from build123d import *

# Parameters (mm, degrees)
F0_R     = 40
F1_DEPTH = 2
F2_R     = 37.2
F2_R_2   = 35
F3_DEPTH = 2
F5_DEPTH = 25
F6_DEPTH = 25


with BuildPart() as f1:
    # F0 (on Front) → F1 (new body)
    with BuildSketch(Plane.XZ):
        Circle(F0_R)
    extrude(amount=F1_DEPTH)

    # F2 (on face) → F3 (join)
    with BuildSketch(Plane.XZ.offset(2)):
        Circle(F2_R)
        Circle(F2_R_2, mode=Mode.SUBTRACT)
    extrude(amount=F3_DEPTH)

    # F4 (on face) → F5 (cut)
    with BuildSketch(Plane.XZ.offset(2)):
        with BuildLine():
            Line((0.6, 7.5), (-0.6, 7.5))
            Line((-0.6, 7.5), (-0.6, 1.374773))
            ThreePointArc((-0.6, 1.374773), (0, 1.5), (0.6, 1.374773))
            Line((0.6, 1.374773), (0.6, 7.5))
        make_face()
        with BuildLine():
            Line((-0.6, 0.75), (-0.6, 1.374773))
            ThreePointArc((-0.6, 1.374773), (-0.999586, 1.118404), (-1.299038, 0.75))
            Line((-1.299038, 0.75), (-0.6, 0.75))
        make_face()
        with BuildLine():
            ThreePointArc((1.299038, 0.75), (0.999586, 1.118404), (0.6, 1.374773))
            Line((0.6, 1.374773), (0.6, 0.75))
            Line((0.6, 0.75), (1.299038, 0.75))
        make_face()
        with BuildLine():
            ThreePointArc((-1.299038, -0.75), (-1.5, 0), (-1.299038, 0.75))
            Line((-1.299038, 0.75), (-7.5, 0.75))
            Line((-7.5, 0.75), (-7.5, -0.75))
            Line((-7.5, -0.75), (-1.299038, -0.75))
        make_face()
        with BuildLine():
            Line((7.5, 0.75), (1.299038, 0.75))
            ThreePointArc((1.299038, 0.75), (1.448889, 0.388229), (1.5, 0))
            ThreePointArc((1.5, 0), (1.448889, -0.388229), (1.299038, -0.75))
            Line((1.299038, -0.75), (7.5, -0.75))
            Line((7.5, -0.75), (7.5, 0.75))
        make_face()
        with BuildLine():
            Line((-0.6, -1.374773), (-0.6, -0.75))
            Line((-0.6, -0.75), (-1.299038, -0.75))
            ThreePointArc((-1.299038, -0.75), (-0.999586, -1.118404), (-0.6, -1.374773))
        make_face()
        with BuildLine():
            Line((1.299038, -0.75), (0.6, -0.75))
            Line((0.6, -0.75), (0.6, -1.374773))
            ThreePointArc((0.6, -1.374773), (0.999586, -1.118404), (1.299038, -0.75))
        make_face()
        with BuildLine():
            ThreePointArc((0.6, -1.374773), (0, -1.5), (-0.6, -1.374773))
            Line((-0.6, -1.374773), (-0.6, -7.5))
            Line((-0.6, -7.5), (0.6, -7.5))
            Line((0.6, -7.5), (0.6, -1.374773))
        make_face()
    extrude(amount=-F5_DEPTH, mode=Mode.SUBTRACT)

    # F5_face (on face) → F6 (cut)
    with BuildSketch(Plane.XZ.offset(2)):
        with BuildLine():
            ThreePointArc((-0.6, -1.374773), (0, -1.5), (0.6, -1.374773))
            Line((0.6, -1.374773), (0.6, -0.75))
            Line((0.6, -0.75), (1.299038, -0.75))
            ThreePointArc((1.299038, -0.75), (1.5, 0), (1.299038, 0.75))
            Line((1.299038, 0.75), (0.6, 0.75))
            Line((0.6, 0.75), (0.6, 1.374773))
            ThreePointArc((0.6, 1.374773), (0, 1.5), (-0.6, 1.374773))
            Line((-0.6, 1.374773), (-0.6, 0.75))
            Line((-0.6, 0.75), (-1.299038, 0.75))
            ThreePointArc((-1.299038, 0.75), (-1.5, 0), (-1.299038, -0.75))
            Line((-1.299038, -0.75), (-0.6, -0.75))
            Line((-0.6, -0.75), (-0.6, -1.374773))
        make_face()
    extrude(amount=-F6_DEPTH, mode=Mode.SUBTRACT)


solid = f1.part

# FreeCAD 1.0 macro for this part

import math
import FreeCAD as App
import Part
import Sketcher

doc = App.newDocument("Part")
params = doc.addObject("Spreadsheet::Sheet", "Params")
for row, (alias, value) in enumerate([
    ("sketch1_diameter", "80 mm"),
    ("pad1_length", "2 mm"),
    ("sketch2_diameter", "70 mm"),
    ("sketch2_diameter2", "74.4 mm"),
    ("pad2_length", "2 mm"),
    ("sketch3_radius", "1.499999 mm"),
    ("sketch3_width", "1.2 mm"),
    ("sketch3_height", "1.5 mm"),
    ("pocket1_length", "25 mm"),
    ("sketch4_radius", "1.499999 mm"),
    ("pocket2_length", "25 mm"),
], start=1):
    params.set(f"A{row}", alias)
    params.set(f"B{row}", "=" + value)
    params.setAlias(f"B{row}", alias)

body = doc.addObject("PartDesign::Body", "Body")
body.AllowCompound = True

# Sketch on XZ plane
sketch1 = doc.addObject("Sketcher::SketchObject", "Sketch")
body.addObject(sketch1)
sketch1.AttachmentSupport = (doc.XZ_Plane, [""])
sketch1.MapMode = "FlatFace"
sketch1.addGeometry(Part.Circle(App.Vector(0, 0, 0), App.Vector(0, 0, 1), 40), False)
sketch1.addConstraint([
    Sketcher.Constraint("Coincident", 0, 3, -1, 1),
    Sketcher.Constraint("Diameter", 0, 80.0),
])
sketch1.setExpression("Constraints[1]", "Params.sketch1_diameter")
pad1 = doc.addObject("PartDesign::Pad", "Pad")
body.addObject(pad1)
pad1.Profile = sketch1
pad1.setExpression("Length", "Params.pad1_length")

# Sketch on XZ plane
sketch2 = doc.addObject("Sketcher::SketchObject", "Sketch001")
body.addObject(sketch2)
sketch2.AttachmentSupport = (doc.XZ_Plane, [""])
sketch2.MapMode = "FlatFace"
sketch2.AttachmentOffset = App.Placement(App.Vector(0, 0, 2), App.Rotation())
sketch2.addGeometry([
    Part.Circle(App.Vector(0, 0, 0), App.Vector(0, 0, 1), 37.2),
    Part.Circle(App.Vector(0, 0, 0), App.Vector(0, 0, 1), 35),
], False)
sketch2.addConstraint([
    Sketcher.Constraint("Coincident", 0, 3, -1, 1),
    Sketcher.Constraint("Coincident", 1, 3, -1, 1),
    Sketcher.Constraint("Diameter", 1, 70.0),
    Sketcher.Constraint("Diameter", 0, 74.4),
])
sketch2.setExpression("Constraints[2]", "Params.sketch2_diameter")
sketch2.setExpression("Constraints[3]", "Params.sketch2_diameter2")
pad2 = doc.addObject("PartDesign::Pad", "Pad001")
body.addObject(pad2)
pad2.Profile = sketch2
pad2.setExpression("Length", "Params.pad2_length")

# Sketch on XZ plane
sketch3 = doc.addObject("Sketcher::SketchObject", "Sketch002")
body.addObject(sketch3)
sketch3.AttachmentSupport = (doc.XZ_Plane, [""])
sketch3.MapMode = "FlatFace"
sketch3.AttachmentOffset = App.Placement(App.Vector(0, 0, 2), App.Rotation())
sketch3.addGeometry([
    Part.LineSegment(App.Vector(0.6, 7.5, 0), App.Vector(-0.6, 7.5, 0)),  # 0
    Part.LineSegment(App.Vector(-0.6, 7.5, 0), App.Vector(-0.6, 1.374773, 0)),  # 1
    Part.ArcOfCircle(Part.Circle(App.Vector(0, -0.000003, 0), App.Vector(0, 0, 1), 1.500003), math.radians(66.421875), math.radians(113.578125)),  # 2
    Part.LineSegment(App.Vector(0.6, 1.374773, 0), App.Vector(0.6, 7.5, 0)),  # 3
    Part.LineSegment(App.Vector(-0.6, 0.75, 0), App.Vector(-0.6, 1.374773, 0)),  # 4
    Part.ArcOfCircle(Part.Circle(App.Vector(0.000003, -0.000003, 0), App.Vector(0, 0, 1), 1.500004), math.radians(113.578241), math.radians(149.999972)),  # 5
    Part.LineSegment(App.Vector(-1.299038, 0.75, 0), App.Vector(-0.6, 0.75, 0)),  # 6
    Part.ArcOfCircle(Part.Circle(App.Vector(-0.000003, -0.000003, 0), App.Vector(0, 0, 1), 1.500004), math.radians(30.000028), math.radians(66.421759)),  # 7
    Part.LineSegment(App.Vector(0.6, 1.374773, 0), App.Vector(0.6, 0.75, 0)),  # 8
    Part.LineSegment(App.Vector(0.6, 0.75, 0), App.Vector(1.299038, 0.75, 0)),  # 9
    Part.ArcOfCircle(Part.Circle(App.Vector(-0.000001, 0, 0), App.Vector(0, 0, 1), 1.499999), math.radians(149.999985), math.radians(210.000015)),  # 10
    Part.LineSegment(App.Vector(-1.299038, 0.75, 0), App.Vector(-7.5, 0.75, 0)),  # 11
    Part.LineSegment(App.Vector(-7.5, 0.75, 0), App.Vector(-7.5, -0.75, 0)),  # 12
    Part.LineSegment(App.Vector(-7.5, -0.75, 0), App.Vector(-1.299038, -0.75, 0)),  # 13
    Part.LineSegment(App.Vector(7.5, 0.75, 0), App.Vector(1.299038, 0.75, 0)),  # 14
    Part.ArcOfCircle(Part.Circle(App.Vector(0.000012, 0.000003, 0), App.Vector(0, 0, 1), 1.499988), math.radians(-0.000112), math.radians(30.000127)),  # 15
    Part.ArcOfCircle(Part.Circle(App.Vector(0.000012, -0.000003, 0), App.Vector(0, 0, 1), 1.499988), math.radians(-30.000127), math.radians(0.000112)),  # 16
    Part.LineSegment(App.Vector(1.299038, -0.75, 0), App.Vector(7.5, -0.75, 0)),  # 17
    Part.LineSegment(App.Vector(7.5, -0.75, 0), App.Vector(7.5, 0.75, 0)),  # 18
    Part.LineSegment(App.Vector(-0.6, -1.374773, 0), App.Vector(-0.6, -0.75, 0)),  # 19
    Part.LineSegment(App.Vector(-0.6, -0.75, 0), App.Vector(-1.299038, -0.75, 0)),  # 20
    Part.ArcOfCircle(Part.Circle(App.Vector(0.000003, 0.000003, 0), App.Vector(0, 0, 1), 1.500004), math.radians(-149.999972), math.radians(-113.578241)),  # 21
    Part.LineSegment(App.Vector(1.299038, -0.75, 0), App.Vector(0.6, -0.75, 0)),  # 22
    Part.LineSegment(App.Vector(0.6, -0.75, 0), App.Vector(0.6, -1.374773, 0)),  # 23
    Part.ArcOfCircle(Part.Circle(App.Vector(-0.000003, 0.000003, 0), App.Vector(0, 0, 1), 1.500004), math.radians(-66.421759), math.radians(-30.000028)),  # 24
    Part.ArcOfCircle(Part.Circle(App.Vector(0, 0.000003, 0), App.Vector(0, 0, 1), 1.500003), math.radians(-113.578125), math.radians(-66.421875)),  # 25
    Part.LineSegment(App.Vector(-0.6, -1.374773, 0), App.Vector(-0.6, -7.5, 0)),  # 26
    Part.LineSegment(App.Vector(-0.6, -7.5, 0), App.Vector(0.6, -7.5, 0)),  # 27
    Part.LineSegment(App.Vector(0.6, -7.5, 0), App.Vector(0.6, -1.374773, 0)),  # 28
], False)
sketch3.addConstraint([
    Sketcher.Constraint("Coincident", 0, 2, 1, 1),
    Sketcher.Constraint("Coincident", 1, 2, 2, 2),
    Sketcher.Constraint("Coincident", 2, 1, 3, 1),
    Sketcher.Constraint("Coincident", 3, 2, 0, 1),
    Sketcher.Constraint("Coincident", 4, 2, 5, 1),
    Sketcher.Constraint("Coincident", 5, 2, 6, 1),
    Sketcher.Constraint("Coincident", 6, 2, 4, 1),
    Sketcher.Constraint("Coincident", 7, 2, 8, 1),
    Sketcher.Constraint("Coincident", 8, 2, 9, 1),
    Sketcher.Constraint("Coincident", 9, 2, 7, 1),
    Sketcher.Constraint("Coincident", 10, 1, 11, 1),
    Sketcher.Constraint("Coincident", 11, 2, 12, 1),
    Sketcher.Constraint("Coincident", 12, 2, 13, 1),
    Sketcher.Constraint("Coincident", 13, 2, 10, 2),
    Sketcher.Constraint("Coincident", 14, 2, 15, 2),
    Sketcher.Constraint("Coincident", 15, 1, 16, 2),
    Sketcher.Constraint("Coincident", 16, 1, 17, 1),
    Sketcher.Constraint("Coincident", 17, 2, 18, 1),
    Sketcher.Constraint("Coincident", 18, 2, 14, 1),
    Sketcher.Constraint("Coincident", 19, 2, 20, 1),
    Sketcher.Constraint("Coincident", 20, 2, 21, 1),
    Sketcher.Constraint("Coincident", 21, 2, 19, 1),
    Sketcher.Constraint("Coincident", 22, 2, 23, 1),
    Sketcher.Constraint("Coincident", 23, 2, 24, 1),
    Sketcher.Constraint("Coincident", 24, 2, 22, 1),
    Sketcher.Constraint("Coincident", 25, 1, 26, 1),
    Sketcher.Constraint("Coincident", 26, 2, 27, 1),
    Sketcher.Constraint("Coincident", 27, 2, 28, 1),
    Sketcher.Constraint("Coincident", 28, 2, 25, 2),
    Sketcher.Constraint("Horizontal", 0),
    Sketcher.Constraint("Vertical", 1),
    Sketcher.Constraint("Vertical", 3),
    Sketcher.Constraint("Vertical", 4),
    Sketcher.Constraint("Horizontal", 6),
    Sketcher.Constraint("Vertical", 8),
    Sketcher.Constraint("Horizontal", 9),
    Sketcher.Constraint("Horizontal", 11),
    Sketcher.Constraint("Vertical", 12),
    Sketcher.Constraint("Horizontal", 13),
    Sketcher.Constraint("Horizontal", 14),
    Sketcher.Constraint("Horizontal", 17),
    Sketcher.Constraint("Vertical", 18),
    Sketcher.Constraint("Vertical", 19),
    Sketcher.Constraint("Horizontal", 20),
    Sketcher.Constraint("Horizontal", 22),
    Sketcher.Constraint("Vertical", 23),
    Sketcher.Constraint("Vertical", 26),
    Sketcher.Constraint("Horizontal", 27),
    Sketcher.Constraint("Vertical", 28),
    Sketcher.Constraint("Coincident", 2, 3, -1, 1),
    Sketcher.Constraint("Coincident", 5, 3, -1, 1),
    Sketcher.Constraint("Coincident", 7, 3, -1, 1),
    Sketcher.Constraint("Coincident", 10, 3, -1, 1),
    Sketcher.Constraint("Coincident", 21, 3, -1, 1),
    Sketcher.Constraint("Coincident", 24, 3, -1, 1),
    Sketcher.Constraint("Coincident", 25, 3, -1, 1),
    Sketcher.Constraint("Coincident", 16, 3, 5, 3),
    Sketcher.Constraint("Coincident", 4, 2, 1, 2),
    Sketcher.Constraint("Coincident", 7, 2, 2, 1),
    Sketcher.Constraint("Coincident", 10, 1, 5, 2),
    Sketcher.Constraint("Coincident", 14, 2, 9, 2),
    Sketcher.Constraint("Coincident", 20, 2, 13, 2),
    Sketcher.Constraint("Coincident", 24, 2, 16, 1),
    Sketcher.Constraint("Coincident", 25, 1, 21, 2),
    Sketcher.Constraint("Coincident", 28, 2, 23, 2),
    Sketcher.Constraint("Equal", 15, 16),
    Sketcher.Constraint("Symmetric", 11, 2, 17, 2, -1, 1),
    Sketcher.Constraint("Symmetric", 8, 2, 19, 2, -1, 1),
    Sketcher.Constraint("Symmetric", 0, 2, 27, 2, -1, 1),
    Sketcher.Constraint("Symmetric", 6, 2, 8, 2, -2),
    Sketcher.Constraint("PointOnObject", 15, 1, -1),
    Sketcher.Constraint("Radius", 10, 1.499999),
    Sketcher.Constraint("DistanceX", 0, 2, 0, 1, 1.2),
    Sketcher.Constraint("DistanceY", 12, 2, 12, 1, 1.5),
    Sketcher.Constraint("DistanceX", 15, 1, 17, 2, 6.0),
    Sketcher.Constraint("DistanceY", -1, 1, 0, 2, 7.5),
])
sketch3.setExpression("Constraints[71]", "Params.sketch3_radius")
sketch3.setExpression("Constraints[72]", "Params.sketch3_width")
sketch3.setExpression("Constraints[73]", "Params.sketch3_height")
pocket1 = doc.addObject("PartDesign::Pocket", "Pocket")
body.addObject(pocket1)
pocket1.Profile = sketch3
pocket1.setExpression("Length", "Params.pocket1_length")

# Sketch on XZ plane
sketch4 = doc.addObject("Sketcher::SketchObject", "Sketch003")
body.addObject(sketch4)
sketch4.AttachmentSupport = (doc.XZ_Plane, [""])
sketch4.MapMode = "FlatFace"
sketch4.AttachmentOffset = App.Placement(App.Vector(0, 0, 2), App.Rotation())
sketch4.addGeometry([
    Part.ArcOfCircle(Part.Circle(App.Vector(0, 0.000003, 0), App.Vector(0, 0, 1), 1.500003), math.radians(-113.578125), math.radians(-66.421875)),  # 0
    Part.LineSegment(App.Vector(0.6, -1.374773, 0), App.Vector(0.6, -0.75, 0)),  # 1
    Part.LineSegment(App.Vector(0.6, -0.75, 0), App.Vector(1.299038, -0.75, 0)),  # 2
    Part.ArcOfCircle(Part.Circle(App.Vector(0.000001, 0, 0), App.Vector(0, 0, 1), 1.499999), math.radians(-30.000015), math.radians(30.000015)),  # 3
    Part.LineSegment(App.Vector(1.299038, 0.75, 0), App.Vector(0.6, 0.75, 0)),  # 4
    Part.LineSegment(App.Vector(0.6, 0.75, 0), App.Vector(0.6, 1.374773, 0)),  # 5
    Part.ArcOfCircle(Part.Circle(App.Vector(0, -0.000003, 0), App.Vector(0, 0, 1), 1.500003), math.radians(66.421875), math.radians(113.578125)),  # 6
    Part.LineSegment(App.Vector(-0.6, 1.374773, 0), App.Vector(-0.6, 0.75, 0)),  # 7
    Part.LineSegment(App.Vector(-0.6, 0.75, 0), App.Vector(-1.299038, 0.75, 0)),  # 8
    Part.ArcOfCircle(Part.Circle(App.Vector(-0.000001, 0, 0), App.Vector(0, 0, 1), 1.499999), math.radians(149.999985), math.radians(210.000015)),  # 9
    Part.LineSegment(App.Vector(-1.299038, -0.75, 0), App.Vector(-0.6, -0.75, 0)),  # 10
    Part.LineSegment(App.Vector(-0.6, -0.75, 0), App.Vector(-0.6, -1.374773, 0)),  # 11
], False)
sketch4.addConstraint([
    Sketcher.Constraint("Coincident", 0, 2, 1, 1),
    Sketcher.Constraint("Coincident", 1, 2, 2, 1),
    Sketcher.Constraint("Coincident", 2, 2, 3, 1),
    Sketcher.Constraint("Coincident", 3, 2, 4, 1),
    Sketcher.Constraint("Coincident", 4, 2, 5, 1),
    Sketcher.Constraint("Coincident", 5, 2, 6, 1),
    Sketcher.Constraint("Coincident", 6, 2, 7, 1),
    Sketcher.Constraint("Coincident", 7, 2, 8, 1),
    Sketcher.Constraint("Coincident", 8, 2, 9, 1),
    Sketcher.Constraint("Coincident", 9, 2, 10, 1),
    Sketcher.Constraint("Coincident", 10, 2, 11, 1),
    Sketcher.Constraint("Coincident", 11, 2, 0, 1),
    Sketcher.Constraint("Vertical", 1),
    Sketcher.Constraint("Horizontal", 2),
    Sketcher.Constraint("Horizontal", 4),
    Sketcher.Constraint("Vertical", 5),
    Sketcher.Constraint("Vertical", 7),
    Sketcher.Constraint("Horizontal", 8),
    Sketcher.Constraint("Horizontal", 10),
    Sketcher.Constraint("Vertical", 11),
    Sketcher.Constraint("Coincident", 0, 3, -1, 1),
    Sketcher.Constraint("Coincident", 3, 3, -1, 1),
    Sketcher.Constraint("Coincident", 6, 3, -1, 1),
    Sketcher.Constraint("Coincident", 9, 3, -1, 1),
    Sketcher.Constraint("Equal", 0, 6),
    Sketcher.Constraint("Equal", 3, 9),
    Sketcher.Constraint("Symmetric", 1, 2, 7, 2, -1, 1),
    Sketcher.Constraint("Symmetric", 4, 2, 10, 2, -1, 1),
    Sketcher.Constraint("Symmetric", 4, 2, 7, 2, -2),
    Sketcher.Constraint("Radius", 3, 1.499999),
    Sketcher.Constraint("DistanceX", -1, 1, 0, 2, 0.6),
    Sketcher.Constraint("DistanceY", 2, 2, 3, 2, 1.5),
    Sketcher.Constraint("Radius", 0, 1.500003),
])
sketch4.setExpression("Constraints[29]", "Params.sketch4_radius")
pocket2 = doc.addObject("PartDesign::Pocket", "Pocket001")
body.addObject(pocket2)
pocket2.Profile = sketch4
pocket2.setExpression("Length", "Params.pocket2_length")

doc.recompute()
